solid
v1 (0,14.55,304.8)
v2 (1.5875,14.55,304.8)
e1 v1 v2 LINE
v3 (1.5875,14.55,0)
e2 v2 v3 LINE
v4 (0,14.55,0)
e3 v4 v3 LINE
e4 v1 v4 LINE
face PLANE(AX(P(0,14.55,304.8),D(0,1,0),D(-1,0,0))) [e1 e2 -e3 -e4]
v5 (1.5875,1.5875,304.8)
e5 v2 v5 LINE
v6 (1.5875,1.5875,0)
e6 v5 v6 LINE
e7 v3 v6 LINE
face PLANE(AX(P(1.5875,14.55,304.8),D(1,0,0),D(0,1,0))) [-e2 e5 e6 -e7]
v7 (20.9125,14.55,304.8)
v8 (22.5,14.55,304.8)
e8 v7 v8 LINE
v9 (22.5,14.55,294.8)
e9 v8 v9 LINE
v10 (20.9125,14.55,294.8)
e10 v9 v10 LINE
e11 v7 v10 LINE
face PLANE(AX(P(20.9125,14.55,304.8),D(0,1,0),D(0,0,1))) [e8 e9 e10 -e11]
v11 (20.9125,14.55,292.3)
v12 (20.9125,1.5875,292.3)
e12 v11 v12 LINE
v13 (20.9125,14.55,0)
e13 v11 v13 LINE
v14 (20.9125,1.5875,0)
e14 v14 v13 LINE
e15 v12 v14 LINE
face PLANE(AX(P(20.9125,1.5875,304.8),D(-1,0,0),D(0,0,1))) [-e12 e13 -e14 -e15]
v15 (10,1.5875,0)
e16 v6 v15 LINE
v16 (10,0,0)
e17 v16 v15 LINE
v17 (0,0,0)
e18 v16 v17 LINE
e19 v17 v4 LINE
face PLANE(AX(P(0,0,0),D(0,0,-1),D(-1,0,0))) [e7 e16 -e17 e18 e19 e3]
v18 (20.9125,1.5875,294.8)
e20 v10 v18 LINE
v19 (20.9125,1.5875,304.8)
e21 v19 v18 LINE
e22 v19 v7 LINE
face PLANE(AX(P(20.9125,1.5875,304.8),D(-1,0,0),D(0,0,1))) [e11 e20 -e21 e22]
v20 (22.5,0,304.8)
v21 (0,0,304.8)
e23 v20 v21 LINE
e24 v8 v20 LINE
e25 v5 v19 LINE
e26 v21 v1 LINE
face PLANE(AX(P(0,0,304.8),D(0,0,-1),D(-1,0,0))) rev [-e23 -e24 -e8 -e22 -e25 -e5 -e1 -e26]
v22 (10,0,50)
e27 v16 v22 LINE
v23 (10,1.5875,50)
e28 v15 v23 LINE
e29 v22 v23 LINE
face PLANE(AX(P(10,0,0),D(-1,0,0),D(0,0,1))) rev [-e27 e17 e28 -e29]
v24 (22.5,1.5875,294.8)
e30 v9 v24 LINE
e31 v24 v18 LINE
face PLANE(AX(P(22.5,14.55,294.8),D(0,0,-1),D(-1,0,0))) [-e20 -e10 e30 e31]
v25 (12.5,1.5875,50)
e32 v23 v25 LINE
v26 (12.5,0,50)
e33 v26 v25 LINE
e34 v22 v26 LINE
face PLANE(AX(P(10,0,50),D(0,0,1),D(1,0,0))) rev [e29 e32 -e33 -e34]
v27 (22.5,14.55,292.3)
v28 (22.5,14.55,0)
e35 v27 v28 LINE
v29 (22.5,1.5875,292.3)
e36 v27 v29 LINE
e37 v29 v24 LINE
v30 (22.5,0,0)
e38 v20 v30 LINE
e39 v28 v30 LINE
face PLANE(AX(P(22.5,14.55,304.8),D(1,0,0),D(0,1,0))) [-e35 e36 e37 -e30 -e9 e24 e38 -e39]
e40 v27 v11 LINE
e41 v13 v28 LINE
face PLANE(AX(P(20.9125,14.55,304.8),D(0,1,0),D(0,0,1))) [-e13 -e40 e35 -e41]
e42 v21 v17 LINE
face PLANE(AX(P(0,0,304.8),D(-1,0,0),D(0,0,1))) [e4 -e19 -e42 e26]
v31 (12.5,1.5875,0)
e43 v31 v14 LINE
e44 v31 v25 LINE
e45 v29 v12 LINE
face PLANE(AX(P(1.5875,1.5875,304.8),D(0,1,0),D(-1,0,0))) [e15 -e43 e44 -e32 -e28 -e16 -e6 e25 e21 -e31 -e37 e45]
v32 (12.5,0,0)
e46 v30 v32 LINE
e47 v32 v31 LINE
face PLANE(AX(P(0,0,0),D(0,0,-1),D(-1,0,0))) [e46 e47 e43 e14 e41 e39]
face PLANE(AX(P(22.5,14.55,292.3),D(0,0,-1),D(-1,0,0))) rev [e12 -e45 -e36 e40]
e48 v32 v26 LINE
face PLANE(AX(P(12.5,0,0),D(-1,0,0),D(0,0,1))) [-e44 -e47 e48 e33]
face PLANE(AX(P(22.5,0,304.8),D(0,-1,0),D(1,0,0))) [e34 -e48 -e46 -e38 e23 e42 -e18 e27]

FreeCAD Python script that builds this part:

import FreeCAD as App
import Part
import Sketcher

V = App.Vector
Q = App.Units.Quantity


def add_polygon(sketch, points):
    """Adds a closed chain of lines whose ends are joined by coincident constraints."""
    first, n = sketch.GeometryCount, len(points)
    for a, b in zip(points, points[1:] + points[:1]):
        sketch.addGeometry(Part.LineSegment(App.Vector(*a, 0), App.Vector(*b, 0)), False)
    for i in range(n):
        sketch.addConstraint(Sketcher.Constraint("Coincident", first + i, 2, first + (i + 1) % n, 1))

doc = App.newDocument("Part")
body = doc.addObject("PartDesign::Body", "Body")

sketch1 = body.newObject("Sketcher::SketchObject", "Sketch")
sketch1.AttachmentSupport = (doc.getObject("XY_Plane"), [""])
sketch1.MapMode = "FlatFace"
add_polygon(sketch1, [(0, 14.55), (0, 0), (22.5, 0), (22.5, 14.55), (20.9125, 14.55), (20.9125, 1.5875), (1.5875, 1.5875), (1.5875, 14.55)])
sketch1.addConstraint([
    Sketcher.Constraint("Vertical", 0),
    Sketcher.Constraint("Horizontal", 1),
    Sketcher.Constraint("Vertical", 2),
    Sketcher.Constraint("Horizontal", 3),
    Sketcher.Constraint("Vertical", 4),
    Sketcher.Constraint("Horizontal", 5),
    Sketcher.Constraint("Vertical", 6),
    Sketcher.Constraint("Horizontal", 7),
    Sketcher.Constraint("Coincident", 0, 2, -1, 1),
    Sketcher.Constraint("Horizontal", 3, 2, 6, 2),
    Sketcher.Constraint("Equal", 3, 7),
    Sketcher.Constraint("DistanceX", 1, 1, 1, 2, Q("22.5 mm")),
    Sketcher.Constraint("DistanceY", 0, 2, 0, 1, Q("14.55 mm")),
    Sketcher.Constraint("DistanceX", 5, 2, 5, 1, Q("19.325 mm")),
    Sketcher.Constraint("DistanceY", 4, 2, 4, 1, Q("12.9625 mm")),
])
pad1 = body.newObject("PartDesign::Pad", "Pad")
pad1.Profile = sketch1
pad1.Length = 304.8

sketch2 = body.newObject("Sketcher::SketchObject", "Sketch001")
sketch2.AttachmentSupport = (doc.getObject("YZ_Plane"), [""])
sketch2.MapMode = "FlatFace"
sketch2.AttachmentOffset = App.Placement(V(0, 0, 20.9125), App.Rotation())
add_polygon(sketch2, [(14.55, 292.3), (1.5875, 292.3), (1.5875, 294.8), (14.55, 294.8)])
sketch2.addConstraint([
    Sketcher.Constraint("Horizontal", 0),
    Sketcher.Constraint("Vertical", 1),
    Sketcher.Constraint("Horizontal", 2),
    Sketcher.Constraint("Vertical", 3),
    Sketcher.Constraint("DistanceY", 1, 1, 1, 2, Q("2.5 mm")),
    Sketcher.Constraint("DistanceY", -1, 1, 0, 2, Q("292.3 mm")),
    Sketcher.Constraint("DistanceX", -1, 1, 2, 2, Q("14.55 mm")),
    Sketcher.Constraint("DistanceX", 0, 2, 0, 1, Q("12.9625 mm")),
])
pocket1 = body.newObject("PartDesign::Pocket", "Pocket")
pocket1.Profile = sketch2
pocket1.Type = "ThroughAll"
pocket1.Reversed = True

sketch3 = body.newObject("Sketcher::SketchObject", "Sketch002")
sketch3.AttachmentSupport = (doc.getObject("XZ_Plane"), [""])
sketch3.MapMode = "FlatFace"
sketch3.AttachmentOffset = App.Placement(V(0, 0, -1.5875), App.Rotation())
add_polygon(sketch3, [(10, 0), (10, 50), (12.5, 50), (12.5, 0)])
sketch3.addConstraint([
    Sketcher.Constraint("Vertical", 0),
    Sketcher.Constraint("Horizontal", 1),
    Sketcher.Constraint("Vertical", 2),
    Sketcher.Constraint("Horizontal", 3),
    Sketcher.Constraint("PointOnObject", 2, 2, -1),
    Sketcher.Constraint("DistanceY", 0, 1, 0, 2, Q("50 mm")),
    Sketcher.Constraint("DistanceX", 1, 1, 1, 2, Q("2.5 mm")),
    Sketcher.Constraint("DistanceX", -1, 1, 0, 2, Q("10 mm")),
])
pocket2 = body.newObject("PartDesign::Pocket", "Pocket001")
pocket2.Profile = sketch3
pocket2.Type = "ThroughAll"
pocket2.Reversed = True

doc.recompute()
